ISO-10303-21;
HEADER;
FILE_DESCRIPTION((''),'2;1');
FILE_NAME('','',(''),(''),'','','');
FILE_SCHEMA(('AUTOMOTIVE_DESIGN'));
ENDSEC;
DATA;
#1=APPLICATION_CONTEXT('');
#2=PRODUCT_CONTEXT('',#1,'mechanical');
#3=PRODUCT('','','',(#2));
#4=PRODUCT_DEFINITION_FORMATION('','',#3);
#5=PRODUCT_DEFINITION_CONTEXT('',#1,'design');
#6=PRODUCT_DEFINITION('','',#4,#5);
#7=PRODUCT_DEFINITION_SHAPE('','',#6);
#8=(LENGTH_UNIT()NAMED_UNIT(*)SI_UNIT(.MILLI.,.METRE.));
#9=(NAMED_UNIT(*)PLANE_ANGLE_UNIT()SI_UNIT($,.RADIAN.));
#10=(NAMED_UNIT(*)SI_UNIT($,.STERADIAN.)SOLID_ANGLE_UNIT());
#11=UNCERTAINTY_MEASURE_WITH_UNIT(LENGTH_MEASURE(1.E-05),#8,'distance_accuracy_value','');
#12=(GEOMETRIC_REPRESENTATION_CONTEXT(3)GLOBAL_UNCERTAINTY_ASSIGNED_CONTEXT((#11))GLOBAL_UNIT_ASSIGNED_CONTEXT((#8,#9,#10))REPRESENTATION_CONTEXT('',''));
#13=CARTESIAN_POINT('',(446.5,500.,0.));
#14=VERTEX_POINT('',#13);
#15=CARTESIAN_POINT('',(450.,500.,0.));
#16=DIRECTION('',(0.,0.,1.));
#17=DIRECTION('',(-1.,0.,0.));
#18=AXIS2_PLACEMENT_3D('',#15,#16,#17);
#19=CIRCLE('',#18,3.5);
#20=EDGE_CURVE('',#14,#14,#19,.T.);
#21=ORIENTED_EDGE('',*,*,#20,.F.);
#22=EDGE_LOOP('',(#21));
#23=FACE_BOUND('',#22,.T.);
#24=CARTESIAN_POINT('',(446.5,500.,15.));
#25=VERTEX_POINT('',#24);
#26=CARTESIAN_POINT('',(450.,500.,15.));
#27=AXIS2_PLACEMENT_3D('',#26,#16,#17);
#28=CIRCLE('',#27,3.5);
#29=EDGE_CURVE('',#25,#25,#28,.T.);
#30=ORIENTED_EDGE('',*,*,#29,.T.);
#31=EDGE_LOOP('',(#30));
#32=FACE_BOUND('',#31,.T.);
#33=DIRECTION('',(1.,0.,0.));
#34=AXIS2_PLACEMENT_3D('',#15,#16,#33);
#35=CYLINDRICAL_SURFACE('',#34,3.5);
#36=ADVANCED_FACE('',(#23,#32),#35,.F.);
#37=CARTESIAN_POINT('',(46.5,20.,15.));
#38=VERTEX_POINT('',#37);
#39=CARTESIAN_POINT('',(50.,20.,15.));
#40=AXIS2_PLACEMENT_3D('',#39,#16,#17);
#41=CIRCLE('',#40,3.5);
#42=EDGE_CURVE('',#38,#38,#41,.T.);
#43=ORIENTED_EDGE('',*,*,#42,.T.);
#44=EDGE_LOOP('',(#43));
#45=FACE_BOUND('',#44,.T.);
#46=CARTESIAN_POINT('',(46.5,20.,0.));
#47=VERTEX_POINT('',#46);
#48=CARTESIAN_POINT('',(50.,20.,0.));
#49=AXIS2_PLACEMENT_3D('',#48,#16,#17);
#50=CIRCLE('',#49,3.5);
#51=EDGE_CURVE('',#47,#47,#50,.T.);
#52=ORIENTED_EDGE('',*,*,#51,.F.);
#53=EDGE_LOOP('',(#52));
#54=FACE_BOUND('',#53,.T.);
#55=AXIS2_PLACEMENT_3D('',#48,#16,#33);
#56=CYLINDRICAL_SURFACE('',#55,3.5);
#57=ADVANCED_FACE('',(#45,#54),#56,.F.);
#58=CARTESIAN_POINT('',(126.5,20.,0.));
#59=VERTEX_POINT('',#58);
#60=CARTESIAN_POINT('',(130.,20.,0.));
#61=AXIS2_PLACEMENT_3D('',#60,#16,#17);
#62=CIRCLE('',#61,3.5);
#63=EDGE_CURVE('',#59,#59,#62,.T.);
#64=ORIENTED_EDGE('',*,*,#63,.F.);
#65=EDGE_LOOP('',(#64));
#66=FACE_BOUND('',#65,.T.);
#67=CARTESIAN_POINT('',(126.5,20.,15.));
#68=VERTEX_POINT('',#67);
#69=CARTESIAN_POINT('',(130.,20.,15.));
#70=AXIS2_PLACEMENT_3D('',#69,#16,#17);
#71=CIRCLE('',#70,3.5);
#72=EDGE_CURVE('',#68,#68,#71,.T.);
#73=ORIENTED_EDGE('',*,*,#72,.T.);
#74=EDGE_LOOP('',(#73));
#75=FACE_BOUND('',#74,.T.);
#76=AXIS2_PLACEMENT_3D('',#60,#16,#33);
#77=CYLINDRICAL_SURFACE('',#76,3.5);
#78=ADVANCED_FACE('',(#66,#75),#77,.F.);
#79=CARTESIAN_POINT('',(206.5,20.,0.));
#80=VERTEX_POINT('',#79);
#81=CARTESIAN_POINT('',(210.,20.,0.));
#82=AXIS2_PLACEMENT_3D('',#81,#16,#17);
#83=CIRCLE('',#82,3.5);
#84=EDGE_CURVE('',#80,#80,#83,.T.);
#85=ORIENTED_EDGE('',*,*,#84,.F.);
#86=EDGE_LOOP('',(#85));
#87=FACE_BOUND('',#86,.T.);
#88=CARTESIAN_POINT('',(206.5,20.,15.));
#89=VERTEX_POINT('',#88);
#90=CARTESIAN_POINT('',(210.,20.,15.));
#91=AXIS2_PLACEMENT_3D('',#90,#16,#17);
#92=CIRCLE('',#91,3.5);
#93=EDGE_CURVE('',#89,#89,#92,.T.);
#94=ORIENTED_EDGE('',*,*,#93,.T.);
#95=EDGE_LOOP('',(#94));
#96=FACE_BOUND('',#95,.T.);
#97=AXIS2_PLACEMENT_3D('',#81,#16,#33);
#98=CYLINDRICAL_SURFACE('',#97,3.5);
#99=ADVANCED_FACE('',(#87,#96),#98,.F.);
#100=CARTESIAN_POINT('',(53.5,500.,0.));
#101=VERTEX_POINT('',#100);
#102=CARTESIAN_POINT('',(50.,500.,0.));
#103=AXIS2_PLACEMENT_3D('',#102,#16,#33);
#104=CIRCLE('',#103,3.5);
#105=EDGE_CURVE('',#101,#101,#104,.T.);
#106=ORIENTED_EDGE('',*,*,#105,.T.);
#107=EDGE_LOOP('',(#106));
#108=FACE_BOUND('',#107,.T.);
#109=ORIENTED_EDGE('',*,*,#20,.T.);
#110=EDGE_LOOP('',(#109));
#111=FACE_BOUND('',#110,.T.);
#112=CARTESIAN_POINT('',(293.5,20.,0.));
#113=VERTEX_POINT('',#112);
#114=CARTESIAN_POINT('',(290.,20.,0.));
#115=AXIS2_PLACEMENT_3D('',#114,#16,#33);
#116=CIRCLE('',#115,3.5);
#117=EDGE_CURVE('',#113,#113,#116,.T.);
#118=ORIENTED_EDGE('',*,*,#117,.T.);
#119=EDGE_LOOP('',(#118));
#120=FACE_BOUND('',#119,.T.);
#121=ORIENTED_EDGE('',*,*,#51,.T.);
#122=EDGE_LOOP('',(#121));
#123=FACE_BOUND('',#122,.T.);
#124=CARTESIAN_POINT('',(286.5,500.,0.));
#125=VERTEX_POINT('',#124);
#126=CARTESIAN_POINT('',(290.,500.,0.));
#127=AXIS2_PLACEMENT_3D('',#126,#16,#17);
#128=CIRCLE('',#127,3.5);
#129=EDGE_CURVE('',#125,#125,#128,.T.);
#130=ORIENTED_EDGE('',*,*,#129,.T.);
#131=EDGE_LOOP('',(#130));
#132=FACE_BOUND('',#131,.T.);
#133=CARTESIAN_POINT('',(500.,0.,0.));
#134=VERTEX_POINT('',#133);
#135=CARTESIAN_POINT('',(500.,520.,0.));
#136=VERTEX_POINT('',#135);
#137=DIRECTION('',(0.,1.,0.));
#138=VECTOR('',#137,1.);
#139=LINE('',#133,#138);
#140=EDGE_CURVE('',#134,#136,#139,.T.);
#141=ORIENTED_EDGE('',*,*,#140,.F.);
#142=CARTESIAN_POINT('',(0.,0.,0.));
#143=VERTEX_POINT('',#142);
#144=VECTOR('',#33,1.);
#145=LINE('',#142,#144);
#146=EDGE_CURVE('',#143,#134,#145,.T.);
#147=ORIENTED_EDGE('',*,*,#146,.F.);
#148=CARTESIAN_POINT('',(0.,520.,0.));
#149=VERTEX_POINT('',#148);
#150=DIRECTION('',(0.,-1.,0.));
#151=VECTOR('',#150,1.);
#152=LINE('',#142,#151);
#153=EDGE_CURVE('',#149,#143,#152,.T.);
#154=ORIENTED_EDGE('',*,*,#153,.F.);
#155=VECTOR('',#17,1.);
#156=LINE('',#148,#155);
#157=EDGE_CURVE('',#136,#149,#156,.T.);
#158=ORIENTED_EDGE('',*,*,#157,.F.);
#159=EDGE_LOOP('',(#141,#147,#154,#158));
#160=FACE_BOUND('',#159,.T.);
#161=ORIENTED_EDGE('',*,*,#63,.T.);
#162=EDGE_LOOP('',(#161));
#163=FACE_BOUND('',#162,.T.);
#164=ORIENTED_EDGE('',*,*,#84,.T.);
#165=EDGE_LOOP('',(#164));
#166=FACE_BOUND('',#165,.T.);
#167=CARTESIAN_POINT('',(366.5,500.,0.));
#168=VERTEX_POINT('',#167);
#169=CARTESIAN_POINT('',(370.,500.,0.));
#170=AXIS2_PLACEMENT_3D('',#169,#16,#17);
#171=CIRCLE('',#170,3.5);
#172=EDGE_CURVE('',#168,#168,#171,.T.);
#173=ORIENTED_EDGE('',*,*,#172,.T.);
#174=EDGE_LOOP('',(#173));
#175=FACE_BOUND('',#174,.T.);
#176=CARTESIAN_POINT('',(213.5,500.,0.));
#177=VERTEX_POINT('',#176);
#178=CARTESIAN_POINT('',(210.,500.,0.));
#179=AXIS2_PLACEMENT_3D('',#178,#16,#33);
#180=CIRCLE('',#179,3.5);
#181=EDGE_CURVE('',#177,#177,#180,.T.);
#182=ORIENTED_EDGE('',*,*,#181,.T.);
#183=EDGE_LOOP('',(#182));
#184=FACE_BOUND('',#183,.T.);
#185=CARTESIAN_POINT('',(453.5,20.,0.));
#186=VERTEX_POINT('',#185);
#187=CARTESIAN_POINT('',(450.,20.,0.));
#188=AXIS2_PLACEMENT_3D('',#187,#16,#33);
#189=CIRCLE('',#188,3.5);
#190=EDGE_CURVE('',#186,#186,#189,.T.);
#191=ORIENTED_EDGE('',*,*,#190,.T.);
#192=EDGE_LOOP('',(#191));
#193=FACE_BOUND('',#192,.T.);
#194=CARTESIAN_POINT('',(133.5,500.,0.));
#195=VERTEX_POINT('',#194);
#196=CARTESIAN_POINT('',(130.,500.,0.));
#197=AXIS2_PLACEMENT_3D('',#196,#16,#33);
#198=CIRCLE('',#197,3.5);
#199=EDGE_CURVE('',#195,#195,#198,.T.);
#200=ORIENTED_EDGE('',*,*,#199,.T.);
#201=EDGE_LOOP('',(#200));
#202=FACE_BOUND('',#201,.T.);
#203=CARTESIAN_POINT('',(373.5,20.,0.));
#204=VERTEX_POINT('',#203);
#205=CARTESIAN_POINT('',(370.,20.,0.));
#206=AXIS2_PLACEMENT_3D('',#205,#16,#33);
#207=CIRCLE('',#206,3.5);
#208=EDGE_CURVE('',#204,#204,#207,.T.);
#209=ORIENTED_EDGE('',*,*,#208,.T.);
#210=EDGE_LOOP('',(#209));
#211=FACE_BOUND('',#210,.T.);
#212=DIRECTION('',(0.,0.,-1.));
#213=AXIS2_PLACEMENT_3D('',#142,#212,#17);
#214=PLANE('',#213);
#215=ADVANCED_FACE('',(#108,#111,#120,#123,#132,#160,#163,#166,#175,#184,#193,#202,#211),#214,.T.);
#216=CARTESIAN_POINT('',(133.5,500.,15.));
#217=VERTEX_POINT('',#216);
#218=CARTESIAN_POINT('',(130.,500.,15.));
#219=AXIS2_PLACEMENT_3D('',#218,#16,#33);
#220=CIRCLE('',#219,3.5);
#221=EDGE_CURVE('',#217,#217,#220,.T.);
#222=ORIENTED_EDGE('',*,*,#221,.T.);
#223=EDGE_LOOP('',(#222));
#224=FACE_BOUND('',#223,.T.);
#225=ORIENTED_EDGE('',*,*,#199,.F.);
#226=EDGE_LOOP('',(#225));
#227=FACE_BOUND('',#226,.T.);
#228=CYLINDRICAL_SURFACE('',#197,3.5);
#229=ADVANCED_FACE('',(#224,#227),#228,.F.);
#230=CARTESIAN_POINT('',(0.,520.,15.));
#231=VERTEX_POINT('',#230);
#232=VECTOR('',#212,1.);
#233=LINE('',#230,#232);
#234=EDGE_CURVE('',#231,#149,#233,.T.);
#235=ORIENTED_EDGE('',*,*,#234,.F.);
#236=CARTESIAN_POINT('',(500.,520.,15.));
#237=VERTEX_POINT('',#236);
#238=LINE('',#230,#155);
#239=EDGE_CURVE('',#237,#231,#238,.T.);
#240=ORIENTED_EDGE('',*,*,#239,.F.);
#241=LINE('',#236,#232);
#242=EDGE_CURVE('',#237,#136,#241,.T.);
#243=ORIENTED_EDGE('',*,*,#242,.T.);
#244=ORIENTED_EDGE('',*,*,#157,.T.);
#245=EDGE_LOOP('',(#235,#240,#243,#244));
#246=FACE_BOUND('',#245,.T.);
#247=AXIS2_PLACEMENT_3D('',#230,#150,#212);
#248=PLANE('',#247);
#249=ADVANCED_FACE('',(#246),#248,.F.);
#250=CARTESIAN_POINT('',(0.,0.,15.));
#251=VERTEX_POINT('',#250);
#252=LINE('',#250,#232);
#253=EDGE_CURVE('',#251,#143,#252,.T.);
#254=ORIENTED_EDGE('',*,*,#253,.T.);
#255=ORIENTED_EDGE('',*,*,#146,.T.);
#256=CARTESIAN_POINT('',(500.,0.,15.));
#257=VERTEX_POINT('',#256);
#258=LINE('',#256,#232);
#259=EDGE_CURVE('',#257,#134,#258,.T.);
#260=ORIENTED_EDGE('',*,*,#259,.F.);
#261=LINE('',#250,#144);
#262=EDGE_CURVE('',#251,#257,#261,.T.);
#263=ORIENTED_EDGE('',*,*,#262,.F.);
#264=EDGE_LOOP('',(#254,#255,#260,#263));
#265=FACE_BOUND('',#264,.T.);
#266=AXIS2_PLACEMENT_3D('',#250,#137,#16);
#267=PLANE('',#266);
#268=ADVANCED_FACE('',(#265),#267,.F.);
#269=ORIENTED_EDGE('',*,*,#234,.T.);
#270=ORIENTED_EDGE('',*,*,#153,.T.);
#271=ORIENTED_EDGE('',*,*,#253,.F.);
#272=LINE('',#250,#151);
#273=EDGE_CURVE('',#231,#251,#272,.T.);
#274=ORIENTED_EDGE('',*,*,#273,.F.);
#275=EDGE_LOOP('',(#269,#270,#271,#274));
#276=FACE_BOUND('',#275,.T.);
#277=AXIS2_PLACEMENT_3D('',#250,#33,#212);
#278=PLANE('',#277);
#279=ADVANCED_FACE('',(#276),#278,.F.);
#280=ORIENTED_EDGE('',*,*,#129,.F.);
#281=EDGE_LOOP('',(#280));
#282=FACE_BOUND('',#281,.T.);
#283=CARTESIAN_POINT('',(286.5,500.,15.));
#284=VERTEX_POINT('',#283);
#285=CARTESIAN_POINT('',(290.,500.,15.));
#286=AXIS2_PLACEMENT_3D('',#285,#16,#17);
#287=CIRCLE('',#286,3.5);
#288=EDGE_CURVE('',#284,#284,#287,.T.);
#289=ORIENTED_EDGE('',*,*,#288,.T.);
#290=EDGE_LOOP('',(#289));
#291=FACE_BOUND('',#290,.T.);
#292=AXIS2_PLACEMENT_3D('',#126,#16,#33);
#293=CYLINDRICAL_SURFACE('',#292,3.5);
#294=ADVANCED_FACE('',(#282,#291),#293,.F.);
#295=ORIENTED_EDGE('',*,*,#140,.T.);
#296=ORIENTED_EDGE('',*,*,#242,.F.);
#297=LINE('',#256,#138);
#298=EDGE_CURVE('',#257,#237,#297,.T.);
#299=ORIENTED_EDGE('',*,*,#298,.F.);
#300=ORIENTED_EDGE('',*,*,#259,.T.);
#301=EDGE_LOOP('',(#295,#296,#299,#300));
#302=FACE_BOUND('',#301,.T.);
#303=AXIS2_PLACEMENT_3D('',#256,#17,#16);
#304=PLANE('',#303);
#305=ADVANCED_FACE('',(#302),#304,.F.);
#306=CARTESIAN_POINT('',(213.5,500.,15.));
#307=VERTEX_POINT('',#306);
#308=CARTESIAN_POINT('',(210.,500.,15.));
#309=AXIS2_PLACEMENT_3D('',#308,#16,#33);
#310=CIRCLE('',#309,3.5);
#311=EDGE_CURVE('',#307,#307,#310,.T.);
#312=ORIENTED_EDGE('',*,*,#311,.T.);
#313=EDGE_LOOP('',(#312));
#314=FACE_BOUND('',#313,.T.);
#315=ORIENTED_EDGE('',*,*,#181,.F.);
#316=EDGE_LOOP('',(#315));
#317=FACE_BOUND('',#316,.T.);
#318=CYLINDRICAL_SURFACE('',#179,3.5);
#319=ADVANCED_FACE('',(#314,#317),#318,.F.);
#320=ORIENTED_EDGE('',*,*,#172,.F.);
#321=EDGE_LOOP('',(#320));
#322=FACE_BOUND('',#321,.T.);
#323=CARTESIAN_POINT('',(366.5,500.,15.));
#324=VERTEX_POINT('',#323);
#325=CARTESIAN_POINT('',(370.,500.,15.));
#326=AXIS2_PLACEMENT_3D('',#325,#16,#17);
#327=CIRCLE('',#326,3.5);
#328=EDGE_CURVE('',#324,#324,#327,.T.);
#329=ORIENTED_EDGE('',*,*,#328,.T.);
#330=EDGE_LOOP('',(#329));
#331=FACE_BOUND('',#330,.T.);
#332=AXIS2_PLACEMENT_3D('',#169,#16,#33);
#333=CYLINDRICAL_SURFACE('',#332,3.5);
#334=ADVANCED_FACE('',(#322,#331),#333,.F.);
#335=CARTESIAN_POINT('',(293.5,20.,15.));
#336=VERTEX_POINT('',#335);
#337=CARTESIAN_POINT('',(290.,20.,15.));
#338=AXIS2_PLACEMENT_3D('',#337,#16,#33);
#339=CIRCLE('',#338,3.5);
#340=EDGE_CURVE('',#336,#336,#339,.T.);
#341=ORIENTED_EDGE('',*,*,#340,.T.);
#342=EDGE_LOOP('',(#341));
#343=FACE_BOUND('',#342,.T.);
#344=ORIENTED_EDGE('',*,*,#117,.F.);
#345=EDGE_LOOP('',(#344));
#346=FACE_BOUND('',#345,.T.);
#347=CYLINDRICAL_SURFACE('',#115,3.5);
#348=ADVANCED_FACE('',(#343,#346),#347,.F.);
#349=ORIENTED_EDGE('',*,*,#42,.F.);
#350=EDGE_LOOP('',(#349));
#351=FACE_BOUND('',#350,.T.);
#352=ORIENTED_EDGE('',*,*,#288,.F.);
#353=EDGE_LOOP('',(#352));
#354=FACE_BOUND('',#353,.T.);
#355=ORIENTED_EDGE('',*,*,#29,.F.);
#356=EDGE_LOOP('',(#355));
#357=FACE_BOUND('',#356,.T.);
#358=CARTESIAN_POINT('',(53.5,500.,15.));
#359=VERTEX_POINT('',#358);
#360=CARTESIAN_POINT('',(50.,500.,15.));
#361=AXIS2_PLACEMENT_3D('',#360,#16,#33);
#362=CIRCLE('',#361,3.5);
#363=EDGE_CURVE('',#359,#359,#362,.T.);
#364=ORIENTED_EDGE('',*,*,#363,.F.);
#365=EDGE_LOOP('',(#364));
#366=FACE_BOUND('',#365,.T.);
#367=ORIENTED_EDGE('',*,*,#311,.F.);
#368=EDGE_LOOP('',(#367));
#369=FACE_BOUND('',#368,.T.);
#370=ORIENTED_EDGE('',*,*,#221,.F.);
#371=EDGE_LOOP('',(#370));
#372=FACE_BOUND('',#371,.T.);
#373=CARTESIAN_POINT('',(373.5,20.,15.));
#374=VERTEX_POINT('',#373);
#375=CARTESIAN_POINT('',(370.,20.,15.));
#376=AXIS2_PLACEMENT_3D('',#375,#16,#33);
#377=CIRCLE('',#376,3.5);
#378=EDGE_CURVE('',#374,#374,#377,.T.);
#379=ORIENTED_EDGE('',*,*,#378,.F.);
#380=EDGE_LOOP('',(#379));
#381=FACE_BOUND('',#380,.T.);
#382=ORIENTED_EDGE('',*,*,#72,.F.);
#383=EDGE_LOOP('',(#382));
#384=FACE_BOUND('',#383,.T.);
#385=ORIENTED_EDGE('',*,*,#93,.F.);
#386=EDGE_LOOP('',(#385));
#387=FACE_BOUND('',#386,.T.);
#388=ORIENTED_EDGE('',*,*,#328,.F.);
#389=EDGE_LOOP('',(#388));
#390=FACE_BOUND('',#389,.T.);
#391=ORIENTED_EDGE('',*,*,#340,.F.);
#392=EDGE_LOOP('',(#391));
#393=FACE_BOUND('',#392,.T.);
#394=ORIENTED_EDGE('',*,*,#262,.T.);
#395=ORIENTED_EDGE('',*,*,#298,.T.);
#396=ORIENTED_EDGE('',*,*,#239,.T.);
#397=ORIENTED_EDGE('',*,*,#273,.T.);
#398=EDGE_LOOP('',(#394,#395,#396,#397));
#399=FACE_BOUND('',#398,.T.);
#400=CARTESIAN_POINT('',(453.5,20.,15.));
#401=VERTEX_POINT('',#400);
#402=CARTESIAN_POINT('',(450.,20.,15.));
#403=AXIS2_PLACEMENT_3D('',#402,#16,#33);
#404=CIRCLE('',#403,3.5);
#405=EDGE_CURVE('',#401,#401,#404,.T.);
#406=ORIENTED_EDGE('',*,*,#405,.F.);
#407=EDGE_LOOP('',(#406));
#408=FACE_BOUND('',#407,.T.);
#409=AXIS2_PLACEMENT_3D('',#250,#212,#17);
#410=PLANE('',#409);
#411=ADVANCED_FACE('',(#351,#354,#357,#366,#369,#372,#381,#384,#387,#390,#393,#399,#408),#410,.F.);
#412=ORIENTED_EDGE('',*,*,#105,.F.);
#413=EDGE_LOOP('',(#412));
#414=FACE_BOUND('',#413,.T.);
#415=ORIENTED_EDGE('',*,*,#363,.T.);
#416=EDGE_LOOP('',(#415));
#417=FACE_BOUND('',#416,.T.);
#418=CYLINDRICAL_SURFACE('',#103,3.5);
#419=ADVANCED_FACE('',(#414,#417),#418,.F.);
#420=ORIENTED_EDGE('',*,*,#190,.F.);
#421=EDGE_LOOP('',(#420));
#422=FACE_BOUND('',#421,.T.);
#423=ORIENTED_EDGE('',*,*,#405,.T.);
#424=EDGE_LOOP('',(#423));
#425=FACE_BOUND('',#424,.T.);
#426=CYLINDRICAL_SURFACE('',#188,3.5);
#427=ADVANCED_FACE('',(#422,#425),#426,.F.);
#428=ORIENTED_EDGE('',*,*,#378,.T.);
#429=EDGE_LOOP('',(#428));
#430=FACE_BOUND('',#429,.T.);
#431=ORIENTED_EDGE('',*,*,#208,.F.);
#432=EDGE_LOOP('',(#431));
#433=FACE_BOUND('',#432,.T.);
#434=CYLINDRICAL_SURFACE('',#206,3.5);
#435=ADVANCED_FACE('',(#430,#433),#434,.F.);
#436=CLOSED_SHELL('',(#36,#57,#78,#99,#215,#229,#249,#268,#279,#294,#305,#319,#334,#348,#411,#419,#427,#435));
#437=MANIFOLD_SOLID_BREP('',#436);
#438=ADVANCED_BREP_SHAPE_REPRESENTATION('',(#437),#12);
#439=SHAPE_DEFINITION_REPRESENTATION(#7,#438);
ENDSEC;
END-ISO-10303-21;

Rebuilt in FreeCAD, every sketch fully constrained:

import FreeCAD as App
import Part
import Sketcher
Q = App.Units.Quantity


def add_polygon(sketch, points):
    """Adds a closed chain of lines whose ends are joined by coincident constraints."""
    first, n = sketch.GeometryCount, len(points)
    for a, b in zip(points, points[1:] + points[:1]):
        sketch.addGeometry(Part.LineSegment(App.Vector(*a, 0), App.Vector(*b, 0)), False)
    for i in range(n):
        sketch.addConstraint(Sketcher.Constraint("Coincident", first + i, 2, first + (i + 1) % n, 1))

doc = App.newDocument("Part")
body = doc.addObject("PartDesign::Body", "Body")

sketch1 = body.newObject("Sketcher::SketchObject", "Sketch")
sketch1.AttachmentSupport = (doc.getObject("XY_Plane"), [""])
sketch1.MapMode = "FlatFace"
add_polygon(sketch1, [(0, 520), (0, 0), (500, 0), (500, 520)])
sketch1.addConstraint([
    Sketcher.Constraint("Vertical", 0),
    Sketcher.Constraint("Horizontal", 1),
    Sketcher.Constraint("Vertical", 2),
    Sketcher.Constraint("Horizontal", 3),
    Sketcher.Constraint("Coincident", 0, 2, -1, 1),
    Sketcher.Constraint("DistanceX", 1, 1, 1, 2, Q("500 mm")),
    Sketcher.Constraint("DistanceY", 0, 2, 0, 1, Q("520 mm")),
])
pad1 = body.newObject("PartDesign::Pad", "Pad")
pad1.Profile = sketch1
pad1.Length = 15

sketch2 = body.newObject("Sketcher::SketchObject", "Sketch001")
sketch2.AttachmentSupport = (doc.getObject("XY_Plane"), [""])
sketch2.MapMode = "FlatFace"
sketch2.AttachmentOffset = App.Placement(App.Vector(0, 0, 15), App.Rotation())
sketch2.addGeometry([
    Part.Circle(App.Vector(210, 500, 0), App.Vector(0, 0, 1), 3.5),
    Part.Circle(App.Vector(290, 500, 0), App.Vector(0, 0, 1), 3.5),
    Part.Circle(App.Vector(130, 500, 0), App.Vector(0, 0, 1), 3.5),
    Part.Circle(App.Vector(50, 500, 0), App.Vector(0, 0, 1), 3.5),
    Part.Circle(App.Vector(450, 500, 0), App.Vector(0, 0, 1), 3.5),
    Part.Circle(App.Vector(370, 500, 0), App.Vector(0, 0, 1), 3.5),
    Part.Circle(App.Vector(370, 20, 0), App.Vector(0, 0, 1), 3.5),
    Part.Circle(App.Vector(450, 20, 0), App.Vector(0, 0, 1), 3.5),
    Part.Circle(App.Vector(50, 20, 0), App.Vector(0, 0, 1), 3.5),
    Part.Circle(App.Vector(130, 20, 0), App.Vector(0, 0, 1), 3.5),
    Part.Circle(App.Vector(290, 20, 0), App.Vector(0, 0, 1), 3.5),
    Part.Circle(App.Vector(210, 20, 0), App.Vector(0, 0, 1), 3.5),
], False)
sketch2.addConstraint([
    Sketcher.Constraint("Equal", 0, 1),
    Sketcher.Constraint("Equal", 1, 2),
    Sketcher.Constraint("Equal", 2, 3),
    Sketcher.Constraint("Equal", 3, 4),
    Sketcher.Constraint("Equal", 4, 5),
    Sketcher.Constraint("Equal", 5, 6),
    Sketcher.Constraint("Equal", 6, 7),
    Sketcher.Constraint("Equal", 7, 8),
    Sketcher.Constraint("Equal", 8, 9),
    Sketcher.Constraint("Equal", 9, 10),
    Sketcher.Constraint("Equal", 10, 11),
    Sketcher.Constraint("Horizontal", 0, 3, 1, 3),
    Sketcher.Constraint("Horizontal", 1, 3, 2, 3),
    Sketcher.Constraint("Horizontal", 2, 3, 3, 3),
    Sketcher.Constraint("Horizontal", 3, 3, 4, 3),
    Sketcher.Constraint("Horizontal", 4, 3, 5, 3),
    Sketcher.Constraint("Horizontal", 6, 3, 7, 3),
    Sketcher.Constraint("Horizontal", 7, 3, 8, 3),
    Sketcher.Constraint("Horizontal", 8, 3, 9, 3),
    Sketcher.Constraint("Horizontal", 9, 3, 10, 3),
    Sketcher.Constraint("Horizontal", 10, 3, 11, 3),
    Sketcher.Constraint("Vertical", 5, 3, 6, 3),
    Sketcher.Constraint("Vertical", 4, 3, 7, 3),
    Sketcher.Constraint("Vertical", 3, 3, 8, 3),
    Sketcher.Constraint("Vertical", 2, 3, 9, 3),
    Sketcher.Constraint("Vertical", 1, 3, 10, 3),
    Sketcher.Constraint("Vertical", 0, 3, 11, 3),
    Sketcher.Constraint("Diameter", 0, Q("7 mm")),
    Sketcher.Constraint("DistanceX", -1, 1, 0, 3, Q("210 mm")),
    Sketcher.Constraint("DistanceY", -1, 1, 0, 3, Q("500 mm")),
    Sketcher.Constraint("DistanceX", -1, 1, 1, 3, Q("290 mm")),
    Sketcher.Constraint("DistanceX", -1, 1, 2, 3, Q("130 mm")),
    Sketcher.Constraint("DistanceX", -1, 1, 3, 3, Q("50 mm")),
    Sketcher.Constraint("DistanceX", -1, 1, 4, 3, Q("450 mm")),
    Sketcher.Constraint("DistanceX", -1, 1, 5, 3, Q("370 mm")),
    Sketcher.Constraint("DistanceY", -1, 1, 6, 3, Q("20 mm")),
])
pocket1 = body.newObject("PartDesign::Pocket", "Pocket")
pocket1.Profile = sketch2
pocket1.Type = "ThroughAll"

doc.recompute()
